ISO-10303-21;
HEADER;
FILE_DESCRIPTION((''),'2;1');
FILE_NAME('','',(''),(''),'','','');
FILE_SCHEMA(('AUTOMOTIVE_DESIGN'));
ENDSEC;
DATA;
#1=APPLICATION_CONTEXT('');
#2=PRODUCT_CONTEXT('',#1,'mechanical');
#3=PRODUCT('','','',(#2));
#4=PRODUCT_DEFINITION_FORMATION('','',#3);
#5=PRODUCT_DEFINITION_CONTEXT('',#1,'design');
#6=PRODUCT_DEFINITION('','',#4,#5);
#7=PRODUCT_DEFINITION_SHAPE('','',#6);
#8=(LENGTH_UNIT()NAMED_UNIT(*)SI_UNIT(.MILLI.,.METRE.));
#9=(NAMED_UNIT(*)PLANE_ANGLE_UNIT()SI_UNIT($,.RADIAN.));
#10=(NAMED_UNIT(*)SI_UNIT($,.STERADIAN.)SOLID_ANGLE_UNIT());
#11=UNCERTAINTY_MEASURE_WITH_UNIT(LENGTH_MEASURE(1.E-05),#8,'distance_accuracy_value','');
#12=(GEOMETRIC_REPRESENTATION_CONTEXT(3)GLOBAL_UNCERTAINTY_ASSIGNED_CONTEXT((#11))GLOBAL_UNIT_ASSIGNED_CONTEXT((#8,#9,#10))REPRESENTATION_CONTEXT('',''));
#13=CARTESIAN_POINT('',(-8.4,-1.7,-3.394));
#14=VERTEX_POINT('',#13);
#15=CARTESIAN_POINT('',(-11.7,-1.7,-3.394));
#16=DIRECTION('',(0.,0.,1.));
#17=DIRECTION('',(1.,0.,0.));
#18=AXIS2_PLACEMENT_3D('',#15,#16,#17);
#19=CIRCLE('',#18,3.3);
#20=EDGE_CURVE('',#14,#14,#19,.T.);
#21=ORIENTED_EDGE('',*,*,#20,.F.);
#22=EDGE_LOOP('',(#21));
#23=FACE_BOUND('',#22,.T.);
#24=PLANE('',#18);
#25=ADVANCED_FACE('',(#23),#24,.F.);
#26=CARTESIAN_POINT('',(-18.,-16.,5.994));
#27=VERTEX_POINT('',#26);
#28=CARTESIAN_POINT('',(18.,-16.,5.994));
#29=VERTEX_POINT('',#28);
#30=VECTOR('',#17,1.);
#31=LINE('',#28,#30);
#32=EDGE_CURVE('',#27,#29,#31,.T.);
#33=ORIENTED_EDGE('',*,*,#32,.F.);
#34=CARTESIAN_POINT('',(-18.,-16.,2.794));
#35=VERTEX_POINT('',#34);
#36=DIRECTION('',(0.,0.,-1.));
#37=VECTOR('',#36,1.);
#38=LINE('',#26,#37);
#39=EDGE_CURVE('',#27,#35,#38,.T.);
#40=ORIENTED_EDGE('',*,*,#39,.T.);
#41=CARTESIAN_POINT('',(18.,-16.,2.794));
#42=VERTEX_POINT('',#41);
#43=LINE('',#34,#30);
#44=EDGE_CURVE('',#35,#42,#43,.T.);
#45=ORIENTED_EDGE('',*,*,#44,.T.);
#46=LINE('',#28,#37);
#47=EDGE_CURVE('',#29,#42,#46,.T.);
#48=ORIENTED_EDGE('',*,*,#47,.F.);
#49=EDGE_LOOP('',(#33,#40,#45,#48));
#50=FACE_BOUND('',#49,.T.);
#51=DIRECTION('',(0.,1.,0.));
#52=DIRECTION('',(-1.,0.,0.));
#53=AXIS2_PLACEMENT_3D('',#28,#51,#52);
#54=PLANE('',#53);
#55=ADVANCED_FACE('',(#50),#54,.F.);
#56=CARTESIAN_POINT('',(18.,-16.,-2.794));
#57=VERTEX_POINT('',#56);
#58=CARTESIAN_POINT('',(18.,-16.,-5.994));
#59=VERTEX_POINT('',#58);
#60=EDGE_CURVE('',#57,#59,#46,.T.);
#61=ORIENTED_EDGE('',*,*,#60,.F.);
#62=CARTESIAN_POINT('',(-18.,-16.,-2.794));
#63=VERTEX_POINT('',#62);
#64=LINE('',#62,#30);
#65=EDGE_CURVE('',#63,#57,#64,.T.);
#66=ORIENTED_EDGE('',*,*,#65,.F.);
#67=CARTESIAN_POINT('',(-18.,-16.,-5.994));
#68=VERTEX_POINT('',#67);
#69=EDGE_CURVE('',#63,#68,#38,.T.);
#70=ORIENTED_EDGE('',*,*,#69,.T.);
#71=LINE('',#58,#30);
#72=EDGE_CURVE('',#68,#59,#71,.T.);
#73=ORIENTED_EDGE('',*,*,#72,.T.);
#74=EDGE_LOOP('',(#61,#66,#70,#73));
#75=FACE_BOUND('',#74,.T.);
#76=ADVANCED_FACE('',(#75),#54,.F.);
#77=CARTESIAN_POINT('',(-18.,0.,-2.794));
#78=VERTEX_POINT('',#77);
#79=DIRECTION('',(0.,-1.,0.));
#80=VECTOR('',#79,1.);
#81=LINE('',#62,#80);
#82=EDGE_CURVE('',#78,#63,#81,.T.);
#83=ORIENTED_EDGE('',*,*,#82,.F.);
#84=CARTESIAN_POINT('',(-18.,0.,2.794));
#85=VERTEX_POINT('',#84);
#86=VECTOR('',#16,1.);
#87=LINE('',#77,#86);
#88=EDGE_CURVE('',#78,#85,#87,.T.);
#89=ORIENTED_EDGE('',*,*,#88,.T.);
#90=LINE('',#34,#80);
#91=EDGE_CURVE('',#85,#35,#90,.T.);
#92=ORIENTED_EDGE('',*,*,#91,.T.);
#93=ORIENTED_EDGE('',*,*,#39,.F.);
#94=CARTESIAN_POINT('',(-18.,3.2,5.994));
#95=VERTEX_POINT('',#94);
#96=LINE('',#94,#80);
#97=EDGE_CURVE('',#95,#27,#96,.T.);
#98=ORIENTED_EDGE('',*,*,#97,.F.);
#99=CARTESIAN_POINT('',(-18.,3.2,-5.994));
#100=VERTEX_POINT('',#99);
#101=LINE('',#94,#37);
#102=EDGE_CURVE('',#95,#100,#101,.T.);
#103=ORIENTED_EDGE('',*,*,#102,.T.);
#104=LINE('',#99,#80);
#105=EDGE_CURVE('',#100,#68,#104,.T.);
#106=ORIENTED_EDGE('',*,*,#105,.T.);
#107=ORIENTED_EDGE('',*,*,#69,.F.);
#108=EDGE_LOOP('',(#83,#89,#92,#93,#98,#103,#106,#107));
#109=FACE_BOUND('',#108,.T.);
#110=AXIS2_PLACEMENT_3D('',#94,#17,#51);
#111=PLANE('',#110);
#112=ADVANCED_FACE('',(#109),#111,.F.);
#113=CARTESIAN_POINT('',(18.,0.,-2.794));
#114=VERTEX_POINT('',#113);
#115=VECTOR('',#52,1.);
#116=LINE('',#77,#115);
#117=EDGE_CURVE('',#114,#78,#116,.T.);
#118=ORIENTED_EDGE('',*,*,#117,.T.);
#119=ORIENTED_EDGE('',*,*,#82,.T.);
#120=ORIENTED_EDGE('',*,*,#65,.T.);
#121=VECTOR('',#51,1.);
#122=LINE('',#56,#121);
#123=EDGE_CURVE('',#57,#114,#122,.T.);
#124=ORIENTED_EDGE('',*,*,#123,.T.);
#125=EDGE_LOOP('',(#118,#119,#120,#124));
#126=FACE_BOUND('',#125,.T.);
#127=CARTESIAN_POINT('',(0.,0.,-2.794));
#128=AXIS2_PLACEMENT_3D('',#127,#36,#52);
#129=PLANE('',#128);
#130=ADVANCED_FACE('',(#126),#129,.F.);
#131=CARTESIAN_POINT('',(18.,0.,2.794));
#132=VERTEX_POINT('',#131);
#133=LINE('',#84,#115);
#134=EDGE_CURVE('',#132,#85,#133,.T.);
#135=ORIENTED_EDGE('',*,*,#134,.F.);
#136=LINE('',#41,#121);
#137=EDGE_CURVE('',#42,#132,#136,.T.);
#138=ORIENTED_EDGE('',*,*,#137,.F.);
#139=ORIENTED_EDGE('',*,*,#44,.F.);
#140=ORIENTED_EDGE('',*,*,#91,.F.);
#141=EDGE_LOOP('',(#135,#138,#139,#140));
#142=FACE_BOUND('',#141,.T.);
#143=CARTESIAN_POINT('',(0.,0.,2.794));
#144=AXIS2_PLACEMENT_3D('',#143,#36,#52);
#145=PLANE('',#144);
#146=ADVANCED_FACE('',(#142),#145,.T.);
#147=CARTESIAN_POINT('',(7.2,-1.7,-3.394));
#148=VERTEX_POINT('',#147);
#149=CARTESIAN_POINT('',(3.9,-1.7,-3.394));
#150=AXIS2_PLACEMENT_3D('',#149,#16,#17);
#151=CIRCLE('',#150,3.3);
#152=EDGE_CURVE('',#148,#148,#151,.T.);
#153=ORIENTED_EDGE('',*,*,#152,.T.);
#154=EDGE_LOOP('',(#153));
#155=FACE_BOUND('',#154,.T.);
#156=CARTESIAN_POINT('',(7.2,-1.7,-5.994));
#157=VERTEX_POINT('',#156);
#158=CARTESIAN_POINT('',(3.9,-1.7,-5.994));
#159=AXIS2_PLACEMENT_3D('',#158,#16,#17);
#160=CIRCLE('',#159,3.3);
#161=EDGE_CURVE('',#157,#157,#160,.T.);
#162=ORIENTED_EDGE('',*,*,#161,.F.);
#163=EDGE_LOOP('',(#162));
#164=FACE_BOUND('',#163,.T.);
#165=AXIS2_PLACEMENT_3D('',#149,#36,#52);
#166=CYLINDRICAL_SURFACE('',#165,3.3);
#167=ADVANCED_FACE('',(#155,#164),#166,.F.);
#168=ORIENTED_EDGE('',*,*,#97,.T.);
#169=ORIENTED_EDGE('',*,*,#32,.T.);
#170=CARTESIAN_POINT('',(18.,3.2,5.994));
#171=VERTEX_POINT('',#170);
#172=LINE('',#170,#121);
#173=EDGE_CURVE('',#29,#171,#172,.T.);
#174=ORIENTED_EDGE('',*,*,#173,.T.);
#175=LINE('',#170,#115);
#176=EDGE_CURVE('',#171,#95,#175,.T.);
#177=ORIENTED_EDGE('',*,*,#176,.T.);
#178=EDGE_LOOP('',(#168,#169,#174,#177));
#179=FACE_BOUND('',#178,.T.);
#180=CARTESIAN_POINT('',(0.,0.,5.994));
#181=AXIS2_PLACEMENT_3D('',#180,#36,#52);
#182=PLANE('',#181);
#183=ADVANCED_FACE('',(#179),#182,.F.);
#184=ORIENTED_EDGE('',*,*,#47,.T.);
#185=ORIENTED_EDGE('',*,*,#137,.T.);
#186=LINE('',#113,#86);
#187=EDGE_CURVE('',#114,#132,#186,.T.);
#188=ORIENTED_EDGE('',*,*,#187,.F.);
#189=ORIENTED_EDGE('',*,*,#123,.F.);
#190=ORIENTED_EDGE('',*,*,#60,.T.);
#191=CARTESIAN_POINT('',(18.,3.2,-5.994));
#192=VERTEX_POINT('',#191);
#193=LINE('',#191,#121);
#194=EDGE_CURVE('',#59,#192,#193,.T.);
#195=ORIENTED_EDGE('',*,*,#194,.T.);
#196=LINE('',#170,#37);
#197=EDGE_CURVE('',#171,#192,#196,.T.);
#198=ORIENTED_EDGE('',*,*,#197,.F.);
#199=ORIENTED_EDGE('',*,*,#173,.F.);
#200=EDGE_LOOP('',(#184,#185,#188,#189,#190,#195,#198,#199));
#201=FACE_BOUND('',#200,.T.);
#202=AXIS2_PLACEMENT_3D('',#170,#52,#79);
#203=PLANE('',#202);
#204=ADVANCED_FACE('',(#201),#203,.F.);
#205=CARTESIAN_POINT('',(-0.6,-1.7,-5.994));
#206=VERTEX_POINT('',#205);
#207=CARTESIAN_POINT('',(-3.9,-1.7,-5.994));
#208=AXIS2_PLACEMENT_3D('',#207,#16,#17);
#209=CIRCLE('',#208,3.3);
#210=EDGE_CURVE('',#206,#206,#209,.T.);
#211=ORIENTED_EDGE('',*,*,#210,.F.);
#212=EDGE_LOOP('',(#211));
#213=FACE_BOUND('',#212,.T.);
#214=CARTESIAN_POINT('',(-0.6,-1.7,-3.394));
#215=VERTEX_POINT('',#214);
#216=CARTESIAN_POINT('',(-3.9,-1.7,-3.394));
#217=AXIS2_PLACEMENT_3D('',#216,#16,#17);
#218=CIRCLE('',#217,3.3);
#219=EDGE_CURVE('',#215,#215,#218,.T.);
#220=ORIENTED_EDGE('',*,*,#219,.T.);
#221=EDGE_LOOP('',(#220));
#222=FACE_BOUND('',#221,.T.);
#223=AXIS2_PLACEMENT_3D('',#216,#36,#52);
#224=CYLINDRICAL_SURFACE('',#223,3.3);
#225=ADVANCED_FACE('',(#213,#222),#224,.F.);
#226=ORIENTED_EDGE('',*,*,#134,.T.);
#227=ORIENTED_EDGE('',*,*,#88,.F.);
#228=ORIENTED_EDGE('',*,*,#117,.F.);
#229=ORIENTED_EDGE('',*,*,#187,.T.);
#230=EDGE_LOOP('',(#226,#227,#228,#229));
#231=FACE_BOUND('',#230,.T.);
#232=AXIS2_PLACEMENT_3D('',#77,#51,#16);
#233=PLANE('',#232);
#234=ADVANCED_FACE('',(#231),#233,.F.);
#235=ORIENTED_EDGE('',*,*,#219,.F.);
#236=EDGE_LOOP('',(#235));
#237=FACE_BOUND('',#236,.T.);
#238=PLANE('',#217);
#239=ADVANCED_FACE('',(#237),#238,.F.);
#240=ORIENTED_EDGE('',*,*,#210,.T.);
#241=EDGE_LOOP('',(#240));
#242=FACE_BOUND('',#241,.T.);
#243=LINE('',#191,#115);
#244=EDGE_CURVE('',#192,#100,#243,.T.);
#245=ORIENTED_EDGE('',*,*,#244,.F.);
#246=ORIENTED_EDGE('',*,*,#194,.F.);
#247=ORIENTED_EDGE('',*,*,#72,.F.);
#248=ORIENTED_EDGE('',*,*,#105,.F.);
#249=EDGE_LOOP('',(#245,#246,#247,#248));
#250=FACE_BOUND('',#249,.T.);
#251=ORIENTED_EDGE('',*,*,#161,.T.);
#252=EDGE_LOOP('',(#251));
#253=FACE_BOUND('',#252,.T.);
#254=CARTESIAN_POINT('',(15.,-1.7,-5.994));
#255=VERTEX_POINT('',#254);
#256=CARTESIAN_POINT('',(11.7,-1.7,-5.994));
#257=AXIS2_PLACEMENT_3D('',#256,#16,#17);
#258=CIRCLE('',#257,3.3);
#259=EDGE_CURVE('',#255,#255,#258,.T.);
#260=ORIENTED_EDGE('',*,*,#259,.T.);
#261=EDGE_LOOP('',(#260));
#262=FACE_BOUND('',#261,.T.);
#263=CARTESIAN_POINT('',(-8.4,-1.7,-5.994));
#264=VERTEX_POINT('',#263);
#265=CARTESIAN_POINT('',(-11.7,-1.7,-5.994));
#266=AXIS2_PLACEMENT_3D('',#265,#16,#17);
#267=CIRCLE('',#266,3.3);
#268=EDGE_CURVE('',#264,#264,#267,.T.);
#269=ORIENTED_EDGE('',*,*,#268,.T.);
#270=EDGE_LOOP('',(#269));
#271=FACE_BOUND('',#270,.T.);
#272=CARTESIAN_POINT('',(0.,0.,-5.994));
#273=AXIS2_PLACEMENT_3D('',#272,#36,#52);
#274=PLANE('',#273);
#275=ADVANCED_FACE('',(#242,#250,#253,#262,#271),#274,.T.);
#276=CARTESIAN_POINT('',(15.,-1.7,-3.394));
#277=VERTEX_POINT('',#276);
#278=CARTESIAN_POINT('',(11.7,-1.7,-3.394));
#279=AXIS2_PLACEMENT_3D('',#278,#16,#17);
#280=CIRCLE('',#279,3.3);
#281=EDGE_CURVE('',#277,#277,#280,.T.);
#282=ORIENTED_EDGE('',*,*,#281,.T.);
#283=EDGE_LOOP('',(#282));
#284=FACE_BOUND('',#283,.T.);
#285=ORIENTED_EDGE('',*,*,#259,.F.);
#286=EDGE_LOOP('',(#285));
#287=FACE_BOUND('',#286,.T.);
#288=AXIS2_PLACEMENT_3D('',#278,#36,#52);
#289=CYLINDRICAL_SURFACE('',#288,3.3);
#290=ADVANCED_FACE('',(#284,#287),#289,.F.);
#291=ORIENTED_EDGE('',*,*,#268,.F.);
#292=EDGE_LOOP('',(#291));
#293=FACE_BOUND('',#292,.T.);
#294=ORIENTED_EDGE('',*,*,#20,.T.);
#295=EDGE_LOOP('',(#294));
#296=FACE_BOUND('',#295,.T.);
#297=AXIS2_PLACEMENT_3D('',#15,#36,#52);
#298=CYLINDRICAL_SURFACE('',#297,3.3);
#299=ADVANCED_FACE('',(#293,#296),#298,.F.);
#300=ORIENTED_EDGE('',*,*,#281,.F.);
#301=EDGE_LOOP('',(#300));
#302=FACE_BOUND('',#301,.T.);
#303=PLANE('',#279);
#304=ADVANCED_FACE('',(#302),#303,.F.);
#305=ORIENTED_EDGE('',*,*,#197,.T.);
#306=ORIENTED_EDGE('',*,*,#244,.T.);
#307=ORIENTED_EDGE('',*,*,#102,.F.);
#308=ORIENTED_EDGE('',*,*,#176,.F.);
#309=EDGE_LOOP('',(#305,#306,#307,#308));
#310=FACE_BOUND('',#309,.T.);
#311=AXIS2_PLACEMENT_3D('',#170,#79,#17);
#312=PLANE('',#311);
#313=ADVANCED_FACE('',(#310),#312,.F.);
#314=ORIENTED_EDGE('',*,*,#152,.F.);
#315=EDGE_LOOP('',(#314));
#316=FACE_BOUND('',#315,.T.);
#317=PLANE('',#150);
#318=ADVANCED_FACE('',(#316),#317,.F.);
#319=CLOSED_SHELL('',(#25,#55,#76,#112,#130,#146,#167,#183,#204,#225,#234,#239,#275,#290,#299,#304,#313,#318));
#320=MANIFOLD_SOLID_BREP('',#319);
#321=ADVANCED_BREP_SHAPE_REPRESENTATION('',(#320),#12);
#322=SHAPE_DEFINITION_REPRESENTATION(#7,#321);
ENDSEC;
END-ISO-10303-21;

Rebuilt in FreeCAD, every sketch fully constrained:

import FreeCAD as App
import Part
import Sketcher

V = App.Vector

doc = App.newDocument("Part")
body = doc.addObject("PartDesign::Body", "Body")

# Sketch on XY plane
sketch1 = doc.addObject("Sketcher::SketchObject", "Sketch")
body.addObject(sketch1)
sketch1.AttachmentSupport = (doc.XY_Plane, [""])
sketch1.MapMode = "FlatFace"
sketch1.addGeometry([
    Part.LineSegment(V(-18, 3, 0), V(-18, -16, 0)),
    Part.LineSegment(V(-18, -16, 0), V(18, -16, 0)),
    Part.LineSegment(V(18, -16, 0), V(18, 3, 0)),
    Part.LineSegment(V(18, 3, 0), V(-18, 3, 0)),
], False)
sketch1.addConstraint([
    Sketcher.Constraint("Coincident", 0, 2, 1, 1),
    Sketcher.Constraint("Coincident", 1, 2, 2, 1),
    Sketcher.Constraint("Coincident", 2, 2, 3, 1),
    Sketcher.Constraint("Coincident", 3, 2, 0, 1),
    Sketcher.Constraint("Vertical", 0),
    Sketcher.Constraint("Horizontal", 1),
    Sketcher.Constraint("Vertical", 2),
    Sketcher.Constraint("Horizontal", 3),
    Sketcher.Constraint("DistanceX", 1, 1, 1, 2, 36.0),
    Sketcher.Constraint("DistanceY", 0, 2, 0, 1, 19.2),
    Sketcher.Constraint("DistanceX", 0, 2, -1, 1, 18.0),
    Sketcher.Constraint("DistanceY", 0, 2, -1, 1, 16.0),
])
pad1 = doc.addObject("PartDesign::Pad", "Pad")
body.addObject(pad1)
pad1.Profile = sketch1
pad1.Length = 11.988
pad1.Midplane = True

# Sketch on XY plane
sketch2 = doc.addObject("Sketcher::SketchObject", "Sketch001")
body.addObject(sketch2)
sketch2.AttachmentSupport = (doc.XY_Plane, [""])
sketch2.MapMode = "FlatFace"
sketch2.addGeometry([
    Part.LineSegment(V(-18, 0, 0), V(-18, -16, 0)),
    Part.LineSegment(V(-18, -16, 0), V(18, -16, 0)),
    Part.LineSegment(V(18, -16, 0), V(18, 0, 0)),
    Part.LineSegment(V(18, 0, 0), V(-18, 0, 0)),
], False)
sketch2.addConstraint([
    Sketcher.Constraint("Coincident", 0, 2, 1, 1),
    Sketcher.Constraint("Coincident", 1, 2, 2, 1),
    Sketcher.Constraint("Coincident", 2, 2, 3, 1),
    Sketcher.Constraint("Coincident", 3, 2, 0, 1),
    Sketcher.Constraint("Vertical", 0),
    Sketcher.Constraint("Horizontal", 1),
    Sketcher.Constraint("Vertical", 2),
    Sketcher.Constraint("Horizontal", 3),
    Sketcher.Constraint("Symmetric", 2, 2, 3, 2, -1, 1),
    Sketcher.Constraint("DistanceX", 1, 1, 1, 2, 36.0),
    Sketcher.Constraint("DistanceY", 0, 2, 0, 1, 16.0),
])
pocket1 = doc.addObject("PartDesign::Pocket", "Pocket")
body.addObject(pocket1)
pocket1.Profile = sketch2
pocket1.Length = 5.588
pocket1.Midplane = True

# Sketch on XY plane
sketch3 = doc.addObject("Sketcher::SketchObject", "Sketch002")
body.addObject(sketch3)
sketch3.AttachmentSupport = (doc.XY_Plane, [""])
sketch3.MapMode = "FlatFace"
sketch3.AttachmentOffset = App.Placement(V(0, 0, -5.994), App.Rotation())
sketch3.addGeometry([
    Part.Circle(V(11.7, -1.7, 0), V(0, 0, 1), 3.3),
    Part.Circle(V(3.9, -1.7, 0), V(0, 0, 1), 3.3),
    Part.Circle(V(-3.9, -1.7, 0), V(0, 0, 1), 3.3),
    Part.Circle(V(-11.7, -1.7, 0), V(0, 0, 1), 3.3),
], False)
sketch3.addConstraint([
    Sketcher.Constraint("Equal", 0, 1),
    Sketcher.Constraint("Equal", 1, 2),
    Sketcher.Constraint("Equal", 2, 3),
    Sketcher.Constraint("Symmetric", 1, 3, 2, 3, -2),
    Sketcher.Constraint("Symmetric", 0, 3, 3, 3, -2),
    Sketcher.Constraint("Horizontal", 0, 3, 1, 3),
    Sketcher.Constraint("Diameter", 0, 6.6),
    Sketcher.Constraint("DistanceX", -1, 1, 0, 3, 11.7),
    Sketcher.Constraint("DistanceY", 0, 3, -1, 1, 1.7),
    Sketcher.Constraint("DistanceX", -1, 1, 1, 3, 3.9),
])
pocket2 = doc.addObject("PartDesign::Pocket", "Pocket001")
body.addObject(pocket2)
pocket2.Profile = sketch3
pocket2.Length = 2.6
pocket2.Reversed = True

doc.recompute()
